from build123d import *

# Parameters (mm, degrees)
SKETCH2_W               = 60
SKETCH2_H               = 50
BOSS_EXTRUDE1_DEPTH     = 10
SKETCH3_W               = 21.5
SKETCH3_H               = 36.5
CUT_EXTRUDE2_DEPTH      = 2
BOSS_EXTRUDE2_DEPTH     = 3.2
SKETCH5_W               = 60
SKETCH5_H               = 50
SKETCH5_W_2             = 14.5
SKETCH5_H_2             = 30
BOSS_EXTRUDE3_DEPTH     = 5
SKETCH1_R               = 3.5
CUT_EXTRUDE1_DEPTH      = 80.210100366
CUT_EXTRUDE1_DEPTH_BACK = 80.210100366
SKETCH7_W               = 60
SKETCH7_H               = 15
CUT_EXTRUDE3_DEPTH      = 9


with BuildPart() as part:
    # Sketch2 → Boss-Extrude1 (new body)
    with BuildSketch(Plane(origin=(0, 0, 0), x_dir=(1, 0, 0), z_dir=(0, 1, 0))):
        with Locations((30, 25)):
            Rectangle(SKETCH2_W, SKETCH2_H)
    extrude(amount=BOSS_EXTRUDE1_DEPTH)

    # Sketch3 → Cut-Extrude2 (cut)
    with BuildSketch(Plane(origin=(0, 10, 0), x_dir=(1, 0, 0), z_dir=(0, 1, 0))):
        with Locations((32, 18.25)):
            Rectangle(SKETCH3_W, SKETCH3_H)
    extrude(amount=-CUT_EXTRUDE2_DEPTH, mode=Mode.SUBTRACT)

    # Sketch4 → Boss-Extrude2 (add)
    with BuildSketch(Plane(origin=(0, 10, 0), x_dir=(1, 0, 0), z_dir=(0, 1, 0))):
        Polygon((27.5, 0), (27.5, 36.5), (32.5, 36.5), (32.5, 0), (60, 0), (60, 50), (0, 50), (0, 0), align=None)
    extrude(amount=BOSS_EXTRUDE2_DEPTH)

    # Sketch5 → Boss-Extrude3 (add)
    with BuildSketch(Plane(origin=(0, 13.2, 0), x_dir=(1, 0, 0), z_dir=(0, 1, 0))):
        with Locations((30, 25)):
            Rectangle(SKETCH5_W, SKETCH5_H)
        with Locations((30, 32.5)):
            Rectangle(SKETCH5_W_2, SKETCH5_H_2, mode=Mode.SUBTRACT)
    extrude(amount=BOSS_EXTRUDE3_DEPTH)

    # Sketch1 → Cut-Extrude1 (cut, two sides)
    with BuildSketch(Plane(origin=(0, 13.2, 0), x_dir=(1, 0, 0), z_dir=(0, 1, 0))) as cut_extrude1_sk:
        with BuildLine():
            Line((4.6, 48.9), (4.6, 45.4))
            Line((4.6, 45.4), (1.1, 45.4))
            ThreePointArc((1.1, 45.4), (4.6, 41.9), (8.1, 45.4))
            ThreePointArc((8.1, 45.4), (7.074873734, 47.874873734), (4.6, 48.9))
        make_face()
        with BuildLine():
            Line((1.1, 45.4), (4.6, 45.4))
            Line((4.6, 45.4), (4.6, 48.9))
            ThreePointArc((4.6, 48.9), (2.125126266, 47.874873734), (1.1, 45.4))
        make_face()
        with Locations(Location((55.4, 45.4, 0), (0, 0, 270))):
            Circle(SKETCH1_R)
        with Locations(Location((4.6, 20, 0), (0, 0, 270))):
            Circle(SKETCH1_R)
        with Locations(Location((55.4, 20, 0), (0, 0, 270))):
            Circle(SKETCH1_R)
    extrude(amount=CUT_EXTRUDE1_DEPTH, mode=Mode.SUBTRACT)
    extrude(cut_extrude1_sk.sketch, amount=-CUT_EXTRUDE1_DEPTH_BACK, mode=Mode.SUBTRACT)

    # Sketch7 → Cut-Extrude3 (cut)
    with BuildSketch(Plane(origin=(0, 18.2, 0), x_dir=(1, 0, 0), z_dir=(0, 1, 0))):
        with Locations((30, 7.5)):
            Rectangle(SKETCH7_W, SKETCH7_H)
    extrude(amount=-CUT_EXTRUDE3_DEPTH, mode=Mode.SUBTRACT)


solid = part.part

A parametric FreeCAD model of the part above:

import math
import FreeCAD as App
import Part
import Sketcher


def add_polygon(sketch, points):
    """Adds a closed chain of lines whose ends are joined by coincident constraints."""
    first, n = sketch.GeometryCount, len(points)
    for a, b in zip(points, points[1:] + points[:1]):
        sketch.addGeometry(Part.LineSegment(App.Vector(*a, 0), App.Vector(*b, 0)), False)
    for i in range(n):
        sketch.addConstraint(Sketcher.Constraint("Coincident", first + i, 2, first + (i + 1) % n, 1))

doc = App.newDocument("Part")
body = doc.addObject("PartDesign::Body", "Body")

sketch1 = doc.addObject("Sketcher::SketchObject", "Sketch")
body.addObject(sketch1)
sketch1.AttachmentSupport = (doc.XZ_Plane, [""])
sketch1.MapMode = "FlatFace"
add_polygon(sketch1, [(0, -50), (0, 0), (60, 0), (60, -50)])
sketch1.addConstraint(Sketcher.Constraint("Vertical", 0))
sketch1.addConstraint(Sketcher.Constraint("Horizontal", 1))
sketch1.addConstraint(Sketcher.Constraint("Vertical", 2))
sketch1.addConstraint(Sketcher.Constraint("Horizontal", 3))
sketch1.addConstraint(Sketcher.Constraint("Coincident", 0, 2, -1, 1))
sketch1.addConstraint(Sketcher.Constraint("DistanceX", 1, 1, 1, 2, 60.0))
sketch1.addConstraint(Sketcher.Constraint("DistanceY", 0, 1, 0, 2, 50.0))
pad1 = doc.addObject("PartDesign::Pad", "Pad")
body.addObject(pad1)
pad1.Profile = sketch1
pad1.Length = 10
pad1.Reversed = True

sketch2 = doc.addObject("Sketcher::SketchObject", "Sketch001")
body.addObject(sketch2)
sketch2.AttachmentSupport = (doc.XZ_Plane, [""])
sketch2.MapMode = "FlatFace"
sketch2.AttachmentOffset = App.Placement(App.Vector(0, 0, -10), App.Rotation())
add_polygon(sketch2, [(21.25, -36.5), (21.25, 0), (42.75, 0), (42.75, -36.5)])
sketch2.addConstraint(Sketcher.Constraint("Vertical", 0))
sketch2.addConstraint(Sketcher.Constraint("Horizontal", 1))
sketch2.addConstraint(Sketcher.Constraint("Vertical", 2))
sketch2.addConstraint(Sketcher.Constraint("Horizontal", 3))
sketch2.addConstraint(Sketcher.Constraint("PointOnObject", 0, 2, -1))
sketch2.addConstraint(Sketcher.Constraint("DistanceX", 1, 1, 1, 2, 21.5))
sketch2.addConstraint(Sketcher.Constraint("DistanceY", 0, 1, 0, 2, 36.5))
sketch2.addConstraint(Sketcher.Constraint("DistanceX", -1, 1, 0, 2, 21.25))
pocket1 = doc.addObject("PartDesign::Pocket", "Pocket")
body.addObject(pocket1)
pocket1.Profile = sketch2
pocket1.Length = 2
pocket1.Reversed = True

sketch3 = doc.addObject("Sketcher::SketchObject", "Sketch002")
body.addObject(sketch3)
sketch3.AttachmentSupport = (doc.XZ_Plane, [""])
sketch3.MapMode = "FlatFace"
sketch3.AttachmentOffset = App.Placement(App.Vector(0, 0, -10), App.Rotation())
add_polygon(sketch3, [(27.5, 0), (27.5, -36.5), (32.5, -36.5), (32.5, 0), (60, 0), (60, -50), (0, -50), (0, 0)])
sketch3.addConstraint(Sketcher.Constraint("Vertical", 0))
sketch3.addConstraint(Sketcher.Constraint("Horizontal", 1))
sketch3.addConstraint(Sketcher.Constraint("Vertical", 2))
sketch3.addConstraint(Sketcher.Constraint("Horizontal", 3))
sketch3.addConstraint(Sketcher.Constraint("Vertical", 4))
sketch3.addConstraint(Sketcher.Constraint("Horizontal", 5))
sketch3.addConstraint(Sketcher.Constraint("Vertical", 6))
sketch3.addConstraint(Sketcher.Constraint("Horizontal", 7))
sketch3.addConstraint(Sketcher.Constraint("Coincident", 6, 2, -1, 1))
sketch3.addConstraint(Sketcher.Constraint("PointOnObject", 2, 2, -1))
sketch3.addConstraint(Sketcher.Constraint("Equal", 3, 7))
sketch3.addConstraint(Sketcher.Constraint("DistanceX", 1, 1, 1, 2, 5.0))
sketch3.addConstraint(Sketcher.Constraint("DistanceX", 5, 2, 5, 1, 60.0))
sketch3.addConstraint(Sketcher.Constraint("DistanceY", 4, 2, 4, 1, 50.0))
sketch3.addConstraint(Sketcher.Constraint("DistanceY", 0, 2, 0, 1, 36.5))
pad2 = doc.addObject("PartDesign::Pad", "Pad001")
body.addObject(pad2)
pad2.Profile = sketch3
pad2.Length = 3.2
pad2.Reversed = True

sketch4 = doc.addObject("Sketcher::SketchObject", "Sketch003")
body.addObject(sketch4)
sketch4.AttachmentSupport = (doc.XZ_Plane, [""])
sketch4.MapMode = "FlatFace"
sketch4.AttachmentOffset = App.Placement(App.Vector(0, 0, -13.2), App.Rotation())
add_polygon(sketch4, [(0, -50), (0, 0), (60, 0), (60, -50)])
add_polygon(sketch4, [(37.25, -17.5), (22.75, -17.5), (22.75, -47.5), (37.25, -47.5)])
sketch4.addConstraint(Sketcher.Constraint("Vertical", 0))
sketch4.addConstraint(Sketcher.Constraint("Horizontal", 1))
sketch4.addConstraint(Sketcher.Constraint("Vertical", 2))
sketch4.addConstraint(Sketcher.Constraint("Horizontal", 3))
sketch4.addConstraint(Sketcher.Constraint("Horizontal", 4))
sketch4.addConstraint(Sketcher.Constraint("Vertical", 5))
sketch4.addConstraint(Sketcher.Constraint("Horizontal", 6))
sketch4.addConstraint(Sketcher.Constraint("Vertical", 7))
sketch4.addConstraint(Sketcher.Constraint("Coincident", 0, 2, -1, 1))
sketch4.addConstraint(Sketcher.Constraint("DistanceX", 1, 1, 1, 2, 60.0))
sketch4.addConstraint(Sketcher.Constraint("DistanceY", 0, 1, 0, 2, 50.0))
sketch4.addConstraint(Sketcher.Constraint("DistanceY", 5, 2, 5, 1, 30.0))
sketch4.addConstraint(Sketcher.Constraint("DistanceX", 4, 2, 4, 1, 14.5))
sketch4.addConstraint(Sketcher.Constraint("DistanceY", 4, 2, -1, 1, 17.5))
sketch4.addConstraint(Sketcher.Constraint("DistanceX", -1, 1, 4, 2, 22.75))
pad3 = doc.addObject("PartDesign::Pad", "Pad002")
body.addObject(pad3)
pad3.Profile = sketch4
pad3.Length = 5
pad3.Reversed = True

sketch5 = doc.addObject("Sketcher::SketchObject", "Sketch004")
body.addObject(sketch5)
sketch5.AttachmentSupport = (doc.XZ_Plane, [""])
sketch5.MapMode = "FlatFace"
sketch5.AttachmentOffset = App.Placement(App.Vector(0, 0, -13.2), App.Rotation())
sketch5.addGeometry(Part.ArcOfCircle(Part.Circle(App.Vector(4.6, -45.4, 0), App.Vector(0, 0, 1), 3.5), math.radians(0), math.radians(180)), False)
sketch5.addGeometry(Part.ArcOfCircle(Part.Circle(App.Vector(4.6, -45.4, 0), App.Vector(0, 0, 1), 3.5), math.radians(-90), math.radians(0)), False)
sketch5.addGeometry(Part.ArcOfCircle(Part.Circle(App.Vector(4.6, -45.4, 0), App.Vector(0, 0, 1), 3.5), math.radians(-180), math.radians(-90)), False)
sketch5.addGeometry(Part.Circle(App.Vector(55.4, -45.4, 0), App.Vector(0, 0, 1), 3.5), False)
sketch5.addGeometry(Part.Circle(App.Vector(4.6, -20, 0), App.Vector(0, 0, 1), 3.5), False)
sketch5.addGeometry(Part.Circle(App.Vector(55.4, -20, 0), App.Vector(0, 0, 1), 3.5), False)
sketch5.addConstraint(Sketcher.Constraint("Tangent", 0, 1, 1, 2))
sketch5.addConstraint(Sketcher.Constraint("Tangent", 1, 1, 2, 2))
sketch5.addConstraint(Sketcher.Constraint("Tangent", 2, 1, 0, 2))
sketch5.addConstraint(Sketcher.Constraint("Equal", 2, 3))
sketch5.addConstraint(Sketcher.Constraint("Equal", 3, 4))
sketch5.addConstraint(Sketcher.Constraint("Equal", 4, 5))
sketch5.addConstraint(Sketcher.Constraint("Horizontal", 2, 3, 3, 3))
sketch5.addConstraint(Sketcher.Constraint("Horizontal", 4, 3, 5, 3))
sketch5.addConstraint(Sketcher.Constraint("Horizontal", 3, 3, 0, 1))
sketch5.addConstraint(Sketcher.Constraint("Horizontal", 0, 1, 2, 1))
sketch5.addConstraint(Sketcher.Constraint("Vertical", 2, 3, 4, 3))
sketch5.addConstraint(Sketcher.Constraint("Vertical", 3, 3, 5, 3))
sketch5.addConstraint(Sketcher.Constraint("Vertical", 4, 3, 1, 1))
sketch5.addConstraint(Sketcher.Constraint("Diameter", 3, 7.0))
sketch5.addConstraint(Sketcher.Constraint("DistanceY", 4, 3, -1, 1, 20.0))
sketch5.addConstraint(Sketcher.Constraint("DistanceX", -1, 1, 0, 3, 4.6))
sketch5.addConstraint(Sketcher.Constraint("DistanceY", 0, 3, -1, 1, 45.4))
sketch5.addConstraint(Sketcher.Constraint("DistanceX", -1, 1, 3, 3, 55.4))
pocket2 = doc.addObject("PartDesign::Pocket", "Pocket001")
body.addObject(pocket2)
pocket2.Profile = sketch5
pocket2.Type = "ThroughAll"
pocket2.Midplane = True

sketch6 = doc.addObject("Sketcher::SketchObject", "Sketch005")
body.addObject(sketch6)
sketch6.AttachmentSupport = (doc.XZ_Plane, [""])
sketch6.MapMode = "FlatFace"
sketch6.AttachmentOffset = App.Placement(App.Vector(0, 0, -18.2), App.Rotation())
add_polygon(sketch6, [(0, -15), (0, 0), (60, 0), (60, -15)])
sketch6.addConstraint(Sketcher.Constraint("Vertical", 0))
sketch6.addConstraint(Sketcher.Constraint("Horizontal", 1))
sketch6.addConstraint(Sketcher.Constraint("Vertical", 2))
sketch6.addConstraint(Sketcher.Constraint("Horizontal", 3))
sketch6.addConstraint(Sketcher.Constraint("Coincident", 0, 2, -1, 1))
sketch6.addConstraint(Sketcher.Constraint("DistanceX", 1, 1, 1, 2, 60.0))
sketch6.addConstraint(Sketcher.Constraint("DistanceY", 0, 1, 0, 2, 15.0))
pocket3 = doc.addObject("PartDesign::Pocket", "Pocket002")
body.addObject(pocket3)
pocket3.Profile = sketch6
pocket3.Length = 9
pocket3.Reversed = True

doc.recompute()
